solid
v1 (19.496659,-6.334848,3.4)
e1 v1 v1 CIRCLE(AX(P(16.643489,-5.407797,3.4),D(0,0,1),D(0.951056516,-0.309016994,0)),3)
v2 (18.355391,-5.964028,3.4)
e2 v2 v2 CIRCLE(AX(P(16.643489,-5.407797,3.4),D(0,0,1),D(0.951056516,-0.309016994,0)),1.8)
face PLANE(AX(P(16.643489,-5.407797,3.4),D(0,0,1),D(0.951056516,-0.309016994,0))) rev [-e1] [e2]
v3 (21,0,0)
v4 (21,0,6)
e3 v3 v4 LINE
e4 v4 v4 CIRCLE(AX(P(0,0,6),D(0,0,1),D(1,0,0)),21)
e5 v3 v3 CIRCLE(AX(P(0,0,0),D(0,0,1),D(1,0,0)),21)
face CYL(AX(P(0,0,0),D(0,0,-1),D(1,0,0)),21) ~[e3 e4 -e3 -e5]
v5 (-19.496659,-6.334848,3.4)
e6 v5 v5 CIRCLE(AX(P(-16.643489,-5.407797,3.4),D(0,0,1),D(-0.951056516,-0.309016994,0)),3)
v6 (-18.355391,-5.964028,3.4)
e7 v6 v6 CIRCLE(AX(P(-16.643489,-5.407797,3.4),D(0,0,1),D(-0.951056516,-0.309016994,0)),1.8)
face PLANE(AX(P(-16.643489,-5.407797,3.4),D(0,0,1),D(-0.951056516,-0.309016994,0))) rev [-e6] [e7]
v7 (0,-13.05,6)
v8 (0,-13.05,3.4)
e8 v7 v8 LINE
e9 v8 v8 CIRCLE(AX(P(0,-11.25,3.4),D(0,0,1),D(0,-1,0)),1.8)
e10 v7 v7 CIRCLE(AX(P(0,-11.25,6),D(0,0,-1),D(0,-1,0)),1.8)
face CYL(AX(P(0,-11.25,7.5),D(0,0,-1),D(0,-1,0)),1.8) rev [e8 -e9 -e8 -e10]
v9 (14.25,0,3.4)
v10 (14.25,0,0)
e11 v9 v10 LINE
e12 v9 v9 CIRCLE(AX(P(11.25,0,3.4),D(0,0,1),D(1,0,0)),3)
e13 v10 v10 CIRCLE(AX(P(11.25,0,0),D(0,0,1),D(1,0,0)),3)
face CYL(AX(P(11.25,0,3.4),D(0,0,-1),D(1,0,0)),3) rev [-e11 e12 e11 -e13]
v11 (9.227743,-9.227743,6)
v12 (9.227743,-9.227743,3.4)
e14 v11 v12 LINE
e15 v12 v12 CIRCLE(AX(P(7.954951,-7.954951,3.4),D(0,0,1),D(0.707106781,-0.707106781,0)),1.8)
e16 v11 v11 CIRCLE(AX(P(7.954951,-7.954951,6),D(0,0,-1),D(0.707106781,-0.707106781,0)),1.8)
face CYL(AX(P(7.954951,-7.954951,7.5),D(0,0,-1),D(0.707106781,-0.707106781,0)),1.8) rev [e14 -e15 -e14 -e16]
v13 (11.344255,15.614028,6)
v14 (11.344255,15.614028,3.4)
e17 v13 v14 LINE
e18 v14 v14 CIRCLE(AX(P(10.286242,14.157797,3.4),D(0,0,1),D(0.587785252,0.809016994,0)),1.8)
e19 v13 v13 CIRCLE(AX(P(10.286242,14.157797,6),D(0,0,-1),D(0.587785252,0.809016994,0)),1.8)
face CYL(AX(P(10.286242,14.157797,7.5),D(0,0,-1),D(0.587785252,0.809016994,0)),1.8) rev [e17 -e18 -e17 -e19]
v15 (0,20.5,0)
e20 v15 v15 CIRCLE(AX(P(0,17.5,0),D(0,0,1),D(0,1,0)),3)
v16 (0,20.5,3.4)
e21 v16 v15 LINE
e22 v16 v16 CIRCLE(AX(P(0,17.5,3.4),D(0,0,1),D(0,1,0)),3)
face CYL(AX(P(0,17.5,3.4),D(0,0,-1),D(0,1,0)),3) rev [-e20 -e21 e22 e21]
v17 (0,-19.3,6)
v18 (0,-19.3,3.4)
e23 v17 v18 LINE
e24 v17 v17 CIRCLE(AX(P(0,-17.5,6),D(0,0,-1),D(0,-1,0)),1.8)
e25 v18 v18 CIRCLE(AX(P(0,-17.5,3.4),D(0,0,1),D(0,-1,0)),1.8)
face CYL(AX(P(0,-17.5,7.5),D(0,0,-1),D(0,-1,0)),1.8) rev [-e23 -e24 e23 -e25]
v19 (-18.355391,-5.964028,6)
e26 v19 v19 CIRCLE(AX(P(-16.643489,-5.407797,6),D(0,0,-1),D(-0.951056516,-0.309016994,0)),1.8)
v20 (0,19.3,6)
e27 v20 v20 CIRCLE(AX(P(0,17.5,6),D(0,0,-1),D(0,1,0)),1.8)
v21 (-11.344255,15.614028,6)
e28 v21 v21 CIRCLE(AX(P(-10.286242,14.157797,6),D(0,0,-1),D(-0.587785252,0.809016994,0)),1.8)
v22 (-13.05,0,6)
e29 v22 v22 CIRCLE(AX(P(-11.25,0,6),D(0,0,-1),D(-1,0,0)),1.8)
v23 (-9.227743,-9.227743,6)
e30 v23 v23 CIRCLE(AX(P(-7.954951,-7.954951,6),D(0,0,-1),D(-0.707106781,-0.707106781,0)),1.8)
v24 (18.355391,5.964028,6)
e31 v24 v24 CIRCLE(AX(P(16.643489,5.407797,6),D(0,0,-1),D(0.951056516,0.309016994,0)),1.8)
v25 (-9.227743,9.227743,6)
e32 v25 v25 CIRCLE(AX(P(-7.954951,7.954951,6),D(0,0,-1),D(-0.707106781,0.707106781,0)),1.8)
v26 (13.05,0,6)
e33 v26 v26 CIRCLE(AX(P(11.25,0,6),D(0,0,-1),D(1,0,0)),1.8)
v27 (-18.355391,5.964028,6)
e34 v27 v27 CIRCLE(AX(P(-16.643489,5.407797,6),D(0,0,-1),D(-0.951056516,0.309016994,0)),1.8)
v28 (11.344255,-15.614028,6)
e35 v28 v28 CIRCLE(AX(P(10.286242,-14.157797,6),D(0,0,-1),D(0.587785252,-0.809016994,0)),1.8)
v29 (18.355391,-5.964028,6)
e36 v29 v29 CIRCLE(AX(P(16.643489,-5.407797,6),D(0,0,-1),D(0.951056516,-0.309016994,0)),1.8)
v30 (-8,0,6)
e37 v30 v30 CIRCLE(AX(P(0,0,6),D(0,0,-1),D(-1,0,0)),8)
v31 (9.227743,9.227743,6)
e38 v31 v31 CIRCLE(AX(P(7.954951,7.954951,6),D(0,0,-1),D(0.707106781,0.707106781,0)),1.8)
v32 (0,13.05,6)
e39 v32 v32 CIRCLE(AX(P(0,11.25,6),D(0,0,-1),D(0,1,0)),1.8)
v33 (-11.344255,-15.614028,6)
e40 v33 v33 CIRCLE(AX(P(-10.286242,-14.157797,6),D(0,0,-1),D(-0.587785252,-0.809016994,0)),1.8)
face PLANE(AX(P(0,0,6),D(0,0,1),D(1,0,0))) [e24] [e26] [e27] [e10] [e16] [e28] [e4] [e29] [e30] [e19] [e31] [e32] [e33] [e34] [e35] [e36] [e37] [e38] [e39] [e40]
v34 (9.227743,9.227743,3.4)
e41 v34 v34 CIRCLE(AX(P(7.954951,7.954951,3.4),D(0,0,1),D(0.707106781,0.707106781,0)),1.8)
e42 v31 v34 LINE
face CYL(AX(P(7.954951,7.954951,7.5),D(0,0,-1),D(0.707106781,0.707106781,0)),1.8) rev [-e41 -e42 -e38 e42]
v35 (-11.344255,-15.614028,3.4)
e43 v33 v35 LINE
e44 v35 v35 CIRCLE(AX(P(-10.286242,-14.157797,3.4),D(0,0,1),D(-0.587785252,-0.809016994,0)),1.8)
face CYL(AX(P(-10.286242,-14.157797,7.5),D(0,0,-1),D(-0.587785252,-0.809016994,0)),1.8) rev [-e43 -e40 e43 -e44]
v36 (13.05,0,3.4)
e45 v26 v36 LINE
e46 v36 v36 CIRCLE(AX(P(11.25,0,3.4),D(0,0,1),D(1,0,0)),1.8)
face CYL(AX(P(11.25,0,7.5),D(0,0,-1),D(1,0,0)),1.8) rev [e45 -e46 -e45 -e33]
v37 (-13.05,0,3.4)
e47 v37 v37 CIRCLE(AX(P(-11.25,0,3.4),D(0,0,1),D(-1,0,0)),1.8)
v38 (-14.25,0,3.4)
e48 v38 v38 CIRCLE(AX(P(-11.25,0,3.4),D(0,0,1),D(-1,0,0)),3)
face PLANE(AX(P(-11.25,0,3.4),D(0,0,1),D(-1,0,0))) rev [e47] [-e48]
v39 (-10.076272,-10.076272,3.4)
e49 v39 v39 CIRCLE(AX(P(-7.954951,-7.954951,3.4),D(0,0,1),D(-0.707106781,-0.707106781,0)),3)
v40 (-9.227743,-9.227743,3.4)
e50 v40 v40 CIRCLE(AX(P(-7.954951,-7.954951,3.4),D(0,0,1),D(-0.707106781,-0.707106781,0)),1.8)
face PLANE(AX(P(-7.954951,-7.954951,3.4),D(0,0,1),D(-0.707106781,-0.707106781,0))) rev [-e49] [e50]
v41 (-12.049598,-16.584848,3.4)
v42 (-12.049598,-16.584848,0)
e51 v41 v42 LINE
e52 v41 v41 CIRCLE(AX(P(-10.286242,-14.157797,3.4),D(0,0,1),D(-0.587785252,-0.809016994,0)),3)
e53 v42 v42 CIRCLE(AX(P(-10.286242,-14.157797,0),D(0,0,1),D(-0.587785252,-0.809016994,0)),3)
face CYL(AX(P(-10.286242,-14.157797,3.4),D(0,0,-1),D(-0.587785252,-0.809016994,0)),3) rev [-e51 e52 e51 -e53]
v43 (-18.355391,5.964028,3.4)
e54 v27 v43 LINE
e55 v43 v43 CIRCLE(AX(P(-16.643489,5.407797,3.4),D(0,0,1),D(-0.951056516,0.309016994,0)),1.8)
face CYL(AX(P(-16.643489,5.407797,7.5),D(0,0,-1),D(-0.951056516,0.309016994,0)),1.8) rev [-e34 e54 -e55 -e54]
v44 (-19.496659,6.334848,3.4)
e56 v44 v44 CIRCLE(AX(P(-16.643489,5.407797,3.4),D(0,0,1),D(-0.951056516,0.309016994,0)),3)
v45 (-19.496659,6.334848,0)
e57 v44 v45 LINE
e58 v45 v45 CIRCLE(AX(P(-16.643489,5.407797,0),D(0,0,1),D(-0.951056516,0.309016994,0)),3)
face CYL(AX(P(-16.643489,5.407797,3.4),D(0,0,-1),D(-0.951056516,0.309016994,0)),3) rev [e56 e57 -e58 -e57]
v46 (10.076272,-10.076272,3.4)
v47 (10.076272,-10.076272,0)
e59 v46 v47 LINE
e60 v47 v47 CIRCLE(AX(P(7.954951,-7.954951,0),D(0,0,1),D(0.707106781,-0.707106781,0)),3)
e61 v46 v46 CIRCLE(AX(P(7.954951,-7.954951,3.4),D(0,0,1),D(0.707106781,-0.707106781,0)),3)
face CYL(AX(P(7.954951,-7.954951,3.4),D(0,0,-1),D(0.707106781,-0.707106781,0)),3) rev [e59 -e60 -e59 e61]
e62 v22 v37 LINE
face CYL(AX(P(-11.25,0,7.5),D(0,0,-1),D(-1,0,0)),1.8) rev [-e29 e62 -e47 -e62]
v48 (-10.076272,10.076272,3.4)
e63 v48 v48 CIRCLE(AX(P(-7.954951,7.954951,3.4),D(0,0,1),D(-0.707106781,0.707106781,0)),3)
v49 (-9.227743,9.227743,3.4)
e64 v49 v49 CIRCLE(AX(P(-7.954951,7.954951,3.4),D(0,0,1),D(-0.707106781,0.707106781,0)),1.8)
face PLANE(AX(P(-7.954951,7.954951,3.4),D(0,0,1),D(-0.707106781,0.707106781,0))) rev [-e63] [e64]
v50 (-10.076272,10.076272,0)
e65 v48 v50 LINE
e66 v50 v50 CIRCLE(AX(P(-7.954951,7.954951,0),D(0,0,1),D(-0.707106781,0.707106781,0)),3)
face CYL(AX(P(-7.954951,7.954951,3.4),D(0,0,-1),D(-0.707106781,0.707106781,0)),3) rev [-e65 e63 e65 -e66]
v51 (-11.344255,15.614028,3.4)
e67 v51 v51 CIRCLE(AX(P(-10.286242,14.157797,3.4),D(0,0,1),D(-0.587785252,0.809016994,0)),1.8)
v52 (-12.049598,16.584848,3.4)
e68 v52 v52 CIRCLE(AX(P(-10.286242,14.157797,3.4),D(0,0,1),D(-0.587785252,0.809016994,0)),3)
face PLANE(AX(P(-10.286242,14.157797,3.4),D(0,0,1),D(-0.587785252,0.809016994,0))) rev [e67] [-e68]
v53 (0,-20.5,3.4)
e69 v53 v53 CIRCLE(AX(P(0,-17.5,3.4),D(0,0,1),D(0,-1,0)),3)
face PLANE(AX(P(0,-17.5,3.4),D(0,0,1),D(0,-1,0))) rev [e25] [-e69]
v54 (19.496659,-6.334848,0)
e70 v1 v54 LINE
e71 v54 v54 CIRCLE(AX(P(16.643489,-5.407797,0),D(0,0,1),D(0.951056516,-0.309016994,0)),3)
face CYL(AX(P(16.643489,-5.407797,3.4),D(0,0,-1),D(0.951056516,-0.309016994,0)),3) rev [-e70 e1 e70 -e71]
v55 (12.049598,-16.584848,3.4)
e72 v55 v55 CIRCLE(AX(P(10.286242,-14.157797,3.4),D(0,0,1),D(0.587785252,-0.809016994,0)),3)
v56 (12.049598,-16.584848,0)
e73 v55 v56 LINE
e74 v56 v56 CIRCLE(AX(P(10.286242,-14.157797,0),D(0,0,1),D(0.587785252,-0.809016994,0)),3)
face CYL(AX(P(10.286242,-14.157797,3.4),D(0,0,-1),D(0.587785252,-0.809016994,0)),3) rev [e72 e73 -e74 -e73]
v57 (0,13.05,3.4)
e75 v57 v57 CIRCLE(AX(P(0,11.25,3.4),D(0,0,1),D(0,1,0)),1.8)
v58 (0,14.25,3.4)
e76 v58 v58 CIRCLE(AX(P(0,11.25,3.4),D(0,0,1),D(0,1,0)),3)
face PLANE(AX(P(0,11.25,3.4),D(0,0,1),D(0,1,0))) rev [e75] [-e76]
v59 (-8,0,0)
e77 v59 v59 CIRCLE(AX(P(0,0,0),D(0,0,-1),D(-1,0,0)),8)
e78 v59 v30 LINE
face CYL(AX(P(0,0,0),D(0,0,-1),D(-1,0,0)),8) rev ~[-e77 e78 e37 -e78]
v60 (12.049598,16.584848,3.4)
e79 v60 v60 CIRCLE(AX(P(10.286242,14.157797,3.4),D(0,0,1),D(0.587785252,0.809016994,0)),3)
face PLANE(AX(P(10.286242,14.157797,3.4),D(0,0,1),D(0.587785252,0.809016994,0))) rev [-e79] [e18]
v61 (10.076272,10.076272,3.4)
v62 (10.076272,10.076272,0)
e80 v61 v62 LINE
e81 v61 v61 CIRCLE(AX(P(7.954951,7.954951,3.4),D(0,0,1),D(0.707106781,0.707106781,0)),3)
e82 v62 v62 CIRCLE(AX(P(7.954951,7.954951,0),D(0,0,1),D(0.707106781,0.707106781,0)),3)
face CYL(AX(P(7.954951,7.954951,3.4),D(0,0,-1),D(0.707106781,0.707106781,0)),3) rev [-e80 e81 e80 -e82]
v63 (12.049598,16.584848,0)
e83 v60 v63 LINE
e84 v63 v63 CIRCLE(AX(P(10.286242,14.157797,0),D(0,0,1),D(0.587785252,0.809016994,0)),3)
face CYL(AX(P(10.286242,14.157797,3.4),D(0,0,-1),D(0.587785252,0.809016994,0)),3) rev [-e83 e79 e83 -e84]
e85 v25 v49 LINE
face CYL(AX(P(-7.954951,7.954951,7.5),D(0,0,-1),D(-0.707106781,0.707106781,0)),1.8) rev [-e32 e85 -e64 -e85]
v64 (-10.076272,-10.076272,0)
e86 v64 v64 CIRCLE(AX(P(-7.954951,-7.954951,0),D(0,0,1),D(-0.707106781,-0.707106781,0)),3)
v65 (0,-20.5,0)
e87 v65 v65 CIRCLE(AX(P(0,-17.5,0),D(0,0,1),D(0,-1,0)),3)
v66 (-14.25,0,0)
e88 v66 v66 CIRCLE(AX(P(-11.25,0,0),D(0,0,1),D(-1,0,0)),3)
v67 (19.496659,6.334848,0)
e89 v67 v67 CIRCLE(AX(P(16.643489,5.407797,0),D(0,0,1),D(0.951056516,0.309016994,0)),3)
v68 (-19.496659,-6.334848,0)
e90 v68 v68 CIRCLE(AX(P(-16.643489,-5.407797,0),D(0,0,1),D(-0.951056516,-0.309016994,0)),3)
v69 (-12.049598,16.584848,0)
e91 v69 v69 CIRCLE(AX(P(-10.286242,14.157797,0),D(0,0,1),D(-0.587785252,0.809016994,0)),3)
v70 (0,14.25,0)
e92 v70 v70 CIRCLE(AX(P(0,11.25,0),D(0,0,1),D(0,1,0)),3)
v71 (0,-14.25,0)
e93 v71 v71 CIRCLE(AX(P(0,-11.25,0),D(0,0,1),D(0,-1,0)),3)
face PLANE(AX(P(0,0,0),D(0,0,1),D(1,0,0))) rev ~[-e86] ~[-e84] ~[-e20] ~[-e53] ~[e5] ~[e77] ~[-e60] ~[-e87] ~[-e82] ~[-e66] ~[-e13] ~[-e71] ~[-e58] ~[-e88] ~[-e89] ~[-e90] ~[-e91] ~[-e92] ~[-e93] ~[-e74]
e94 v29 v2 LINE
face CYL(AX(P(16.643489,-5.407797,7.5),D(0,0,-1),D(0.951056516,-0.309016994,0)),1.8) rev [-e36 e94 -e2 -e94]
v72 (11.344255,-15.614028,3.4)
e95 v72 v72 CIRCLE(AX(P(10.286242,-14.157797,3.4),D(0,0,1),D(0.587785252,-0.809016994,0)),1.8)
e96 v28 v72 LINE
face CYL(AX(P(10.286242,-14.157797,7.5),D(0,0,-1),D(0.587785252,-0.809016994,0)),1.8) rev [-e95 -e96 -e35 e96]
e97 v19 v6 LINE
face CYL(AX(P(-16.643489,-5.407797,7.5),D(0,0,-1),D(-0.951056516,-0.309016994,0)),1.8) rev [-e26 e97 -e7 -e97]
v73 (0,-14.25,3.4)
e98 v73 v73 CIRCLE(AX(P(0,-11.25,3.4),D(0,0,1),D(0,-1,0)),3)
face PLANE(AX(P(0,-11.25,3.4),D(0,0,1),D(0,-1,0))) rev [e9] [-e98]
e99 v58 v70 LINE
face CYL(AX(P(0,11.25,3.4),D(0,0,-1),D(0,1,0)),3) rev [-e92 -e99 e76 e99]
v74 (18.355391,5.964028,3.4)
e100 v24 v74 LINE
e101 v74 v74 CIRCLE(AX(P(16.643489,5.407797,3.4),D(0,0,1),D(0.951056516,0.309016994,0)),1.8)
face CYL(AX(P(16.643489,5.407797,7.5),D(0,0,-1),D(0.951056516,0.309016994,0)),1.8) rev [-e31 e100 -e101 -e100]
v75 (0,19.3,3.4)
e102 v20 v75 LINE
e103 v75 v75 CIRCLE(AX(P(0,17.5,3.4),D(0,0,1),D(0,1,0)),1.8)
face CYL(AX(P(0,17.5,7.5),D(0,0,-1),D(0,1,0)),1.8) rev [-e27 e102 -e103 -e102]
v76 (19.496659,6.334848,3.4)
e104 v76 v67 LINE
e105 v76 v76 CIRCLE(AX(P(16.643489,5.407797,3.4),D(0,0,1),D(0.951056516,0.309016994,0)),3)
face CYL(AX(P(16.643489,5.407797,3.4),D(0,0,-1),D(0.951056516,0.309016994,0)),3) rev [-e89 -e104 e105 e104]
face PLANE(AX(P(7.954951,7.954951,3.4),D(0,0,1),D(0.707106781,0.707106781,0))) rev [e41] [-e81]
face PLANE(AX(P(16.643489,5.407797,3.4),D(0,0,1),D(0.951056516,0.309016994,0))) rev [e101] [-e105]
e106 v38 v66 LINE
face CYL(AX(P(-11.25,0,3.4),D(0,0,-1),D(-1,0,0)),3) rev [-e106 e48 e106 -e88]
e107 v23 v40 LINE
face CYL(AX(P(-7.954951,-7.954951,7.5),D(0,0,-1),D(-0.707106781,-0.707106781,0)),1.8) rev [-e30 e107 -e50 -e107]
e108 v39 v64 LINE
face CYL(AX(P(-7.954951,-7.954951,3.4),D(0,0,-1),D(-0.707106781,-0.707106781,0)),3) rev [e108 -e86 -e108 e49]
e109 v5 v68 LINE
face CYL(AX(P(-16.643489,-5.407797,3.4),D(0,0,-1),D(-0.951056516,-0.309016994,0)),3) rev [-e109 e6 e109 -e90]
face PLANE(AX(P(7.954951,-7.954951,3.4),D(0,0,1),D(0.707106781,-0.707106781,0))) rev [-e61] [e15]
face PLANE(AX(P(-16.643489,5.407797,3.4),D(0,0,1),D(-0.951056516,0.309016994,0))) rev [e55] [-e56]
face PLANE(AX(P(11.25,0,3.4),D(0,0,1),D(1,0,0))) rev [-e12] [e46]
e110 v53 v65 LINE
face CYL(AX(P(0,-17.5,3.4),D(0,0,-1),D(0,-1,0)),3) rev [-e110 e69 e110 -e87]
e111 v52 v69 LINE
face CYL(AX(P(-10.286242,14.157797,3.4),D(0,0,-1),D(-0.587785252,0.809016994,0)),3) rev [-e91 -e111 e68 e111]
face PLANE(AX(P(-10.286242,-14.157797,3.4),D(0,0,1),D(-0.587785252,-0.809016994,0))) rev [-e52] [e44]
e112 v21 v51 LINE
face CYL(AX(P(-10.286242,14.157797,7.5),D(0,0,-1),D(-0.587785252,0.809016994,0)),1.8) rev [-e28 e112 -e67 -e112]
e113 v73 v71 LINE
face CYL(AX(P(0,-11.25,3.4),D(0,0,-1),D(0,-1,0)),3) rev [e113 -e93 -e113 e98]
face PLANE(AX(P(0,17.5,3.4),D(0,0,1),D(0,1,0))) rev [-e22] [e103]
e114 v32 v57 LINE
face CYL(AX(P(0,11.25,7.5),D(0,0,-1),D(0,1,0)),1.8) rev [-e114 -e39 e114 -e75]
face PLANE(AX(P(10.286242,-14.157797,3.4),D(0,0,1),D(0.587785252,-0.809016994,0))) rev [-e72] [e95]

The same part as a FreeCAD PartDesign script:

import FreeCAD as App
import Part
import Sketcher
Q = App.Units.Quantity

doc = App.newDocument("Part")
params = doc.addObject("Spreadsheet::Sheet", "Params")
for row, (alias, value) in enumerate([
    ("sketch1_diameter", "42 mm"),
    ("pad1_length", "6 mm"),
    ("sketch2_diameter", "16 mm"),
    ("pocket1_length", "8 mm"),
    ("sketch3_width", "3 mm"),
    ("sketch3_width2", "1.2 mm"),
    ("sketch3_height", "3.4 mm"),
    ("sketch3_height2", "4.1 mm"),
    ("groove_angle", "360 deg"),
    ("sketch4_width", "3 mm"),
    ("sketch4_width2", "1.2 mm"),
    ("sketch4_height", "3.4 mm"),
    ("sketch4_height2", "4.1 mm"),
    ("groove2_angle", "360 deg"),
], start=1):
    params.set(f"A{row}", alias)
    params.set(f"B{row}", "=" + value)
    params.setAlias(f"B{row}", alias)

body = doc.addObject("PartDesign::Body", "Body")

# Sketch on XY plane
sketch1 = doc.addObject("Sketcher::SketchObject", "Sketch")
body.addObject(sketch1)
sketch1.AttachmentSupport = (doc.XY_Plane, [""])
sketch1.MapMode = "FlatFace"
sketch1.addGeometry(Part.Circle(App.Vector(0, 0, 0), App.Vector(0, 0, 1), 21), False)
sketch1.addConstraint(Sketcher.Constraint("Coincident", 0, 3, -1, 1))
sketch1.addConstraint(Sketcher.Constraint("Diameter", 0, 42.0))
sketch1.setExpression("Constraints[1]", "Params.sketch1_diameter")
pad1 = doc.addObject("PartDesign::Pad", "Pad")
body.addObject(pad1)
pad1.Profile = sketch1
pad1.setExpression("Length", "Params.pad1_length")

# Sketch on XY plane
sketch2 = doc.addObject("Sketcher::SketchObject", "Sketch001")
body.addObject(sketch2)
sketch2.AttachmentSupport = (doc.XY_Plane, [""])
sketch2.MapMode = "FlatFace"
sketch2.addGeometry(Part.Circle(App.Vector(0, 0, 0), App.Vector(0, 0, 1), 8), False)
sketch2.addConstraint(Sketcher.Constraint("Coincident", 0, 3, -1, 1))
sketch2.addConstraint(Sketcher.Constraint("Diameter", 0, 16.0))
sketch2.setExpression("Constraints[1]", "Params.sketch2_diameter")
pocket1 = doc.addObject("PartDesign::Pocket", "Pocket")
body.addObject(pocket1)
pocket1.Profile = sketch2
pocket1.setExpression("Length", "Params.pocket1_length")
pocket1.Reversed = True

# Sketch on YZ plane
sketch3 = doc.addObject("Sketcher::SketchObject", "Sketch002")
body.addObject(sketch3)
sketch3.AttachmentSupport = (doc.YZ_Plane, [""])
sketch3.MapMode = "FlatFace"
sketch3.addGeometry(Part.LineSegment(App.Vector(11.25, 8.581549, 0), App.Vector(11.25, 0, 0)), False)
sketch3.addGeometry(Part.LineSegment(App.Vector(11.25, 0, 0), App.Vector(14.25, 0, 0)), False)
sketch3.addGeometry(Part.LineSegment(App.Vector(14.25, 0, 0), App.Vector(14.25, 3.4, 0)), False)
sketch3.addGeometry(Part.LineSegment(App.Vector(14.25, 3.4, 0), App.Vector(13.05, 3.4, 0)), False)
sketch3.addGeometry(Part.LineSegment(App.Vector(13.05, 3.4, 0), App.Vector(13.05, 7.5, 0)), False)
sketch3.addGeometry(Part.LineSegment(App.Vector(13.05, 7.5, 0), App.Vector(11.25, 8.581549, 0)), False)
sketch3.addGeometry(Part.LineSegment(App.Vector(11.25, 0, 0), App.Vector(11.25, 8.581549, 0)), True)  # axis
sketch3.addConstraint(Sketcher.Constraint("Coincident", 0, 2, 1, 1))
sketch3.addConstraint(Sketcher.Constraint("Coincident", 1, 2, 2, 1))
sketch3.addConstraint(Sketcher.Constraint("Coincident", 2, 2, 3, 1))
sketch3.addConstraint(Sketcher.Constraint("Coincident", 3, 2, 4, 1))
sketch3.addConstraint(Sketcher.Constraint("Coincident", 4, 2, 5, 1))
sketch3.addConstraint(Sketcher.Constraint("Coincident", 5, 2, 0, 1))
sketch3.addConstraint(Sketcher.Constraint("Vertical", 0))
sketch3.addConstraint(Sketcher.Constraint("Horizontal", 1))
sketch3.addConstraint(Sketcher.Constraint("Vertical", 2))
sketch3.addConstraint(Sketcher.Constraint("Horizontal", 3))
sketch3.addConstraint(Sketcher.Constraint("Vertical", 4))
sketch3.addConstraint(Sketcher.Constraint("Vertical", 6))
sketch3.addConstraint(Sketcher.Constraint("Coincident", 6, 1, 0, 2))
sketch3.addConstraint(Sketcher.Constraint("PointOnObject", 0, 2, -1))
sketch3.addConstraint(Sketcher.Constraint("Equal", 0, 6))
sketch3.addConstraint(Sketcher.Constraint("DistanceX", 1, 1, 1, 2, 3.0))
sketch3.addConstraint(Sketcher.Constraint("Angle", 5, Q("149 deg")))
sketch3.addConstraint(Sketcher.Constraint("DistanceX", 3, 2, 3, 1, 1.2))
sketch3.addConstraint(Sketcher.Constraint("DistanceY", 2, 1, 2, 2, 3.4))
sketch3.addConstraint(Sketcher.Constraint("DistanceY", 4, 1, 4, 2, 4.1))
sketch3.addConstraint(Sketcher.Constraint("DistanceX", -1, 1, 0, 2, 11.25))
sketch3.setExpression("Constraints[15]", "Params.sketch3_width")
sketch3.setExpression("Constraints[17]", "Params.sketch3_width2")
sketch3.setExpression("Constraints[18]", "Params.sketch3_height")
sketch3.setExpression("Constraints[19]", "Params.sketch3_height2")
groove = doc.addObject("PartDesign::Groove", "Groove")
body.addObject(groove)
groove.Profile = sketch3
groove.ReferenceAxis = (sketch3, ["Axis0"])
groove.setExpression("Angle", "Params.groove_angle")
doc.recompute()

polarpattern = doc.addObject("PartDesign::PolarPattern", "PolarPattern")
body.addObject(polarpattern)
polarpattern.Originals = [groove]
polarpattern.Axis = (doc.Z_Axis, [""])
polarpattern.Angle = 360
polarpattern.Occurrences = 8
body.Tip = polarpattern

# Sketch on YZ plane
sketch4 = doc.addObject("Sketcher::SketchObject", "Sketch003")
body.addObject(sketch4)
sketch4.AttachmentSupport = (doc.YZ_Plane, [""])
sketch4.MapMode = "FlatFace"
sketch4.addGeometry(Part.LineSegment(App.Vector(17.5, 8.581549, 0), App.Vector(17.5, 0, 0)), False)
sketch4.addGeometry(Part.LineSegment(App.Vector(17.5, 0, 0), App.Vector(20.5, 0, 0)), False)
sketch4.addGeometry(Part.LineSegment(App.Vector(20.5, 0, 0), App.Vector(20.5, 3.4, 0)), False)
sketch4.addGeometry(Part.LineSegment(App.Vector(20.5, 3.4, 0), App.Vector(19.3, 3.4, 0)), False)
sketch4.addGeometry(Part.LineSegment(App.Vector(19.3, 3.4, 0), App.Vector(19.3, 7.5, 0)), False)
sketch4.addGeometry(Part.LineSegment(App.Vector(19.3, 7.5, 0), App.Vector(17.5, 8.581549, 0)), False)
sketch4.addGeometry(Part.LineSegment(App.Vector(17.5, 0, 0), App.Vector(17.5, 8.581549, 0)), True)  # axis
sketch4.addConstraint(Sketcher.Constraint("Coincident", 0, 2, 1, 1))
sketch4.addConstraint(Sketcher.Constraint("Coincident", 1, 2, 2, 1))
sketch4.addConstraint(Sketcher.Constraint("Coincident", 2, 2, 3, 1))
sketch4.addConstraint(Sketcher.Constraint("Coincident", 3, 2, 4, 1))
sketch4.addConstraint(Sketcher.Constraint("Coincident", 4, 2, 5, 1))
sketch4.addConstraint(Sketcher.Constraint("Coincident", 5, 2, 0, 1))
sketch4.addConstraint(Sketcher.Constraint("Vertical", 0))
sketch4.addConstraint(Sketcher.Constraint("Horizontal", 1))
sketch4.addConstraint(Sketcher.Constraint("Vertical", 2))
sketch4.addConstraint(Sketcher.Constraint("Horizontal", 3))
sketch4.addConstraint(Sketcher.Constraint("Vertical", 4))
sketch4.addConstraint(Sketcher.Constraint("Vertical", 6))
sketch4.addConstraint(Sketcher.Constraint("Coincident", 6, 1, 0, 2))
sketch4.addConstraint(Sketcher.Constraint("PointOnObject", 0, 2, -1))
sketch4.addConstraint(Sketcher.Constraint("Equal", 0, 6))
sketch4.addConstraint(Sketcher.Constraint("DistanceX", 1, 1, 1, 2, 3.0))
sketch4.addConstraint(Sketcher.Constraint("Angle", 5, Q("149 deg")))
sketch4.addConstraint(Sketcher.Constraint("DistanceX", 3, 2, 3, 1, 1.2))
sketch4.addConstraint(Sketcher.Constraint("DistanceY", 2, 1, 2, 2, 3.4))
sketch4.addConstraint(Sketcher.Constraint("DistanceY", 4, 1, 4, 2, 4.1))
sketch4.addConstraint(Sketcher.Constraint("DistanceX", -1, 1, 0, 2, 17.5))
sketch4.setExpression("Constraints[15]", "Params.sketch4_width")
sketch4.setExpression("Constraints[17]", "Params.sketch4_width2")
sketch4.setExpression("Constraints[18]", "Params.sketch4_height")
sketch4.setExpression("Constraints[19]", "Params.sketch4_height2")
groove2 = doc.addObject("PartDesign::Groove", "Groove001")
body.addObject(groove2)
groove2.Profile = sketch4
groove2.ReferenceAxis = (sketch4, ["Axis0"])
groove2.setExpression("Angle", "Params.groove2_angle")
doc.recompute()

polarpattern2 = doc.addObject("PartDesign::PolarPattern", "PolarPattern001")
body.addObject(polarpattern2)
polarpattern2.Originals = [groove2]
polarpattern2.Axis = (doc.Z_Axis, [""])
polarpattern2.Angle = 360
polarpattern2.Occurrences = 10
body.Tip = polarpattern2

doc.recompute()
